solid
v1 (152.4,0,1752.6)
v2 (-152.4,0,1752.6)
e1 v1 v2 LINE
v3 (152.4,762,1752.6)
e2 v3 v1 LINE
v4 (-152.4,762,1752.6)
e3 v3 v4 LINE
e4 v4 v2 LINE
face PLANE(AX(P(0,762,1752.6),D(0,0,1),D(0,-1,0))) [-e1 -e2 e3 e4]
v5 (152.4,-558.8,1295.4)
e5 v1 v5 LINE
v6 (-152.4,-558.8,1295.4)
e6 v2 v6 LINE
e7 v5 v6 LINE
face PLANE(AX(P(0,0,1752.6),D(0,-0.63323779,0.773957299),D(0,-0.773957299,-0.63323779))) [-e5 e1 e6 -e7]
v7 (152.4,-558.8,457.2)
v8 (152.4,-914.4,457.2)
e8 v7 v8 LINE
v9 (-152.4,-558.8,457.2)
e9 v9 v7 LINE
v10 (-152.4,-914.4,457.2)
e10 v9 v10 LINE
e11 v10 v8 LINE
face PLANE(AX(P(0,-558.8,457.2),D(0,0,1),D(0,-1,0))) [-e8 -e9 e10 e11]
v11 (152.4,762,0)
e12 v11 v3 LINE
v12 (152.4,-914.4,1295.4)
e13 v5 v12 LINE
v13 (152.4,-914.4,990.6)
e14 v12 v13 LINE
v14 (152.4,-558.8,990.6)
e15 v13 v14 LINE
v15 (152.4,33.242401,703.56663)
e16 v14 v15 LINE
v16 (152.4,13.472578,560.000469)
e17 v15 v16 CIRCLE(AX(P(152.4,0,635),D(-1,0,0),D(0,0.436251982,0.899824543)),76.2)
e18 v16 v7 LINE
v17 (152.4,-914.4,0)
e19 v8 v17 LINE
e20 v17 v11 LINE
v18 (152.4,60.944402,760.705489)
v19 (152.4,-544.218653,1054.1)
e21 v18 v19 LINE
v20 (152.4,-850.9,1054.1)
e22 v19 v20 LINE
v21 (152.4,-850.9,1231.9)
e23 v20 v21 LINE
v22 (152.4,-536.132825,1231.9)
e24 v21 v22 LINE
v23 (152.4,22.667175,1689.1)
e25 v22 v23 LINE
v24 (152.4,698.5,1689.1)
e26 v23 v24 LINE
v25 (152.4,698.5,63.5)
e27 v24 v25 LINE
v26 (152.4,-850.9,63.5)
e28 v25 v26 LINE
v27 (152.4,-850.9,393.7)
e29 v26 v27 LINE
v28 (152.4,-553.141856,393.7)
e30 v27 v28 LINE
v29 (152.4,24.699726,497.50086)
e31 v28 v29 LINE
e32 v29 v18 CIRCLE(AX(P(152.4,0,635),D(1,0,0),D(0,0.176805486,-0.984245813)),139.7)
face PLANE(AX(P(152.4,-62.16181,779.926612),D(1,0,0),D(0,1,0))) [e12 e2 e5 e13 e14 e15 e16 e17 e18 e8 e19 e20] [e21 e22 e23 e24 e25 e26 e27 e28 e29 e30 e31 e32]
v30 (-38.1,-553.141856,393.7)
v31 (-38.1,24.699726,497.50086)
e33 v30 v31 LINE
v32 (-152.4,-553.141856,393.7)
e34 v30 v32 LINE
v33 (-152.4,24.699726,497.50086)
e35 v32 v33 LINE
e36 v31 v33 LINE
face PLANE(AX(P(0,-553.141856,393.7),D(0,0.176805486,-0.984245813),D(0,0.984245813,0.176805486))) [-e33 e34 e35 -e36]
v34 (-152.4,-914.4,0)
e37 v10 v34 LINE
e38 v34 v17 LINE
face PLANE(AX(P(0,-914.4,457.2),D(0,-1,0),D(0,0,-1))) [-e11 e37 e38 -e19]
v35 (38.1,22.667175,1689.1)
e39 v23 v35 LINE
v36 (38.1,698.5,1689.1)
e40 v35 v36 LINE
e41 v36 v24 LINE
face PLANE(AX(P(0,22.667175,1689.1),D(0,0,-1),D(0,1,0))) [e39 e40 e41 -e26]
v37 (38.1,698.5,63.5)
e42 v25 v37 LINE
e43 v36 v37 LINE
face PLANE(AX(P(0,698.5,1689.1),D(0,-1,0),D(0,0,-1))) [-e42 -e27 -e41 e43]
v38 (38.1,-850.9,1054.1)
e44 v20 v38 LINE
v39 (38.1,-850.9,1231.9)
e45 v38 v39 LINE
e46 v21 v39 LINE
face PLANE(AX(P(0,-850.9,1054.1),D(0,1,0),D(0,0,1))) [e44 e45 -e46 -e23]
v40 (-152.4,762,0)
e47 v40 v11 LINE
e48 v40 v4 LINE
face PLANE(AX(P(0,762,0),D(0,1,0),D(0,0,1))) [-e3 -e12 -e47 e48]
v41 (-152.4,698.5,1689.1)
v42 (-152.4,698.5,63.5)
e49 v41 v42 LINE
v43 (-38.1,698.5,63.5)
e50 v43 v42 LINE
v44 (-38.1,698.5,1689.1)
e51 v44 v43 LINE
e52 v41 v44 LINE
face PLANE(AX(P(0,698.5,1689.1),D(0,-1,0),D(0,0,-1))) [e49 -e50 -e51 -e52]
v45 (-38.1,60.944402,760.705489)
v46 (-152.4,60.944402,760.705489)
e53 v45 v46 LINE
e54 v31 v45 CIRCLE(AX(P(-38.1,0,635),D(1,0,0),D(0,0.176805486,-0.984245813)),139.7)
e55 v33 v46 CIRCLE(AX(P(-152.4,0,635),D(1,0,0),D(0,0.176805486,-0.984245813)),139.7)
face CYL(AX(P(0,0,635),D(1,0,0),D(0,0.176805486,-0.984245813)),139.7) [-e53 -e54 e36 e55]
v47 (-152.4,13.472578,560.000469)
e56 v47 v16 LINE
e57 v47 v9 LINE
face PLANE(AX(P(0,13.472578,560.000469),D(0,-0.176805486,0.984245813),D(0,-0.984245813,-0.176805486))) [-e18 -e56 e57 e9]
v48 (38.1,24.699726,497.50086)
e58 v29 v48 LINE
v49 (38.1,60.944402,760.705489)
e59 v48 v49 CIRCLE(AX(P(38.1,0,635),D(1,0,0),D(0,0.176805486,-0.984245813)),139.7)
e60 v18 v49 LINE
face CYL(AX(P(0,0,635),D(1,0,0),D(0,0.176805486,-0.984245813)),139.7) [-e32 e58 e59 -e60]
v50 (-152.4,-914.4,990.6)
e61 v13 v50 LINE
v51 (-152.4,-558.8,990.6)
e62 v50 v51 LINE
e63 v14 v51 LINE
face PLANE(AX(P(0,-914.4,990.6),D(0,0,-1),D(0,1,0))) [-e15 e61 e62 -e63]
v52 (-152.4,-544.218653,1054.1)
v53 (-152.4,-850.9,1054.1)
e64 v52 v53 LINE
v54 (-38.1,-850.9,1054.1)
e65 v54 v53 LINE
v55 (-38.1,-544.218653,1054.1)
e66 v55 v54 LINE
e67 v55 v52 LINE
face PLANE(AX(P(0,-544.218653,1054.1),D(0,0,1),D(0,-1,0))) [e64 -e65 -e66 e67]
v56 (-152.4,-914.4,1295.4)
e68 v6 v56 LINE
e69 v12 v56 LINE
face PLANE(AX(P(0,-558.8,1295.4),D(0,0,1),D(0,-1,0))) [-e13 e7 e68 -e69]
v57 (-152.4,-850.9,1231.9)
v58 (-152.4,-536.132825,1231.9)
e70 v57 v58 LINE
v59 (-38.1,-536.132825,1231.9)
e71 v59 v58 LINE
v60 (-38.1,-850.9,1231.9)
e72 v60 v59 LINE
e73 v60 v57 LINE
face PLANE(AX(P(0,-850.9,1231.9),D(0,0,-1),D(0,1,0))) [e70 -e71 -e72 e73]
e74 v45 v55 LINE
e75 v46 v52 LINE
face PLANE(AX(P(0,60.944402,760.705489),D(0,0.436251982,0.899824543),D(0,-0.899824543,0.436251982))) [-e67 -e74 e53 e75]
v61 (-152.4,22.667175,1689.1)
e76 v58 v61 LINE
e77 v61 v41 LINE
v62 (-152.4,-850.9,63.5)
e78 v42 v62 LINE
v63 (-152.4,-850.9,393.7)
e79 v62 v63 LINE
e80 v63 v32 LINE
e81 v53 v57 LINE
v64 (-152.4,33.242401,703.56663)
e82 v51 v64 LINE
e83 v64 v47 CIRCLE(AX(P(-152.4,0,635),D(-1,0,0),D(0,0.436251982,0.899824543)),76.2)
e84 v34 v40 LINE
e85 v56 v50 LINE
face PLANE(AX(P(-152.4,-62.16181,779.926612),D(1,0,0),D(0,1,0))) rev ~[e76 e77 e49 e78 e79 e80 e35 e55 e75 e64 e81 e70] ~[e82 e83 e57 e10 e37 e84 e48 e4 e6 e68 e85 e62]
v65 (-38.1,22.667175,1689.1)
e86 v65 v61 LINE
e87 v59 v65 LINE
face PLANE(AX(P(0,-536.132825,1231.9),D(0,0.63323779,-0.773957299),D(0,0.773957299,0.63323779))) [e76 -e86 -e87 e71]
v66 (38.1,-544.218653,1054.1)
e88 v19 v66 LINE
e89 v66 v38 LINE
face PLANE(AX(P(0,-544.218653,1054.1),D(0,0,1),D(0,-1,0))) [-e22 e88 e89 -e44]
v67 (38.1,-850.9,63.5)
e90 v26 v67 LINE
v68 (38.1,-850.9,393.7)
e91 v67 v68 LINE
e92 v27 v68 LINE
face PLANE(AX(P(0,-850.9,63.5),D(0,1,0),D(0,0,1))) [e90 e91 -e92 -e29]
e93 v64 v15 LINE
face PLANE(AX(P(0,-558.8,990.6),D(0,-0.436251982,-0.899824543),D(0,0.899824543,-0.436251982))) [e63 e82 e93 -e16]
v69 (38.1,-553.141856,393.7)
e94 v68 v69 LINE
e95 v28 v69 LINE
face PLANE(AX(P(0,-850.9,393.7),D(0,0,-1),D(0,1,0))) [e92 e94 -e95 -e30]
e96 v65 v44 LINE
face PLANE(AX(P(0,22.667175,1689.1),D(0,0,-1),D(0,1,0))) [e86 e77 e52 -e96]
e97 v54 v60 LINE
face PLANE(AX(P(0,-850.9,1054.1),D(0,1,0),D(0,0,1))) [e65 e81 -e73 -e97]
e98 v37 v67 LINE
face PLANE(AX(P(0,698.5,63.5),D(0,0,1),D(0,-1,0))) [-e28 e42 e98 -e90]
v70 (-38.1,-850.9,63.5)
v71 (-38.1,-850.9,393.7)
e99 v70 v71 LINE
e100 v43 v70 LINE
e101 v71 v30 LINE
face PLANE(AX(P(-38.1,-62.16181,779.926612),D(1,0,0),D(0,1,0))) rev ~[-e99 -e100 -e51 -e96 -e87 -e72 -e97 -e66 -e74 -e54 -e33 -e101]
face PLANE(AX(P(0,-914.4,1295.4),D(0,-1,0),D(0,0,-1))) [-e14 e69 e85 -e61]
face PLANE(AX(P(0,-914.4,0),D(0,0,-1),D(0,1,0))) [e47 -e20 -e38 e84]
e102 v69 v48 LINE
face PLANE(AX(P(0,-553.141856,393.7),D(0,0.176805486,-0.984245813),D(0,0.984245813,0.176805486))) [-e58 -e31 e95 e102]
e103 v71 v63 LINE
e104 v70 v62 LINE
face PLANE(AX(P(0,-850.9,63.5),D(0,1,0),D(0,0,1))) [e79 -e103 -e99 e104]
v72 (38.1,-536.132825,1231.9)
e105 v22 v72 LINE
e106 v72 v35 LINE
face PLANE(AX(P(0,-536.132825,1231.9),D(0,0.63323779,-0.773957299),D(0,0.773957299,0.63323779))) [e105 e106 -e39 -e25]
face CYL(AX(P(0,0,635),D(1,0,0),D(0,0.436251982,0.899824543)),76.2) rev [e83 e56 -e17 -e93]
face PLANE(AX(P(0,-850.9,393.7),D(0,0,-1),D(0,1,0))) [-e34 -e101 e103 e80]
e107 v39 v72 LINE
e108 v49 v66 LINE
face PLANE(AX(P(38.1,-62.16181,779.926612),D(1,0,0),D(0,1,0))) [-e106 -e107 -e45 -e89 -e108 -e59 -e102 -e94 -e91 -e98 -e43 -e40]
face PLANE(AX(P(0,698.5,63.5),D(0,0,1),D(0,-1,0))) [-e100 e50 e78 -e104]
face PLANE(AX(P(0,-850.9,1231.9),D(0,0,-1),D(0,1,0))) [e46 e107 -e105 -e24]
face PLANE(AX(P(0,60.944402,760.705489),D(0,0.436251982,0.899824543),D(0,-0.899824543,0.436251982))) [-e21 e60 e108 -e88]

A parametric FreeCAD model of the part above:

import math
import FreeCAD as App
import Part
import Sketcher

V = App.Vector
Q = App.Units.Quantity

doc = App.newDocument("Part")
body = doc.addObject("PartDesign::Body", "Body")

# Sketch on YZ plane
sketch1 = body.newObject("Sketcher::SketchObject", "Sketch")
sketch1.AttachmentSupport = (doc.getObject("YZ_Plane"), [""])
sketch1.MapMode = "FlatFace"
sketch1.addGeometry(Part.ArcOfCircle(Part.Circle(V(0, 635, 0), V(0, 0, 1), 76), math.radians(-80), math.radians(64)), False)
sketch1.addGeometry(Part.LineSegment(V(13, 560, 0), V(-559, 457, 0)), False)
sketch1.addGeometry(Part.LineSegment(V(-559, 457, 0), V(-914, 457, 0)), False)
sketch1.addGeometry(Part.LineSegment(V(-914, 457, 0), V(-914, 0, 0)), False)
sketch1.addGeometry(Part.LineSegment(V(-914, 0, 0), V(762, 0, 0)), False)
sketch1.addGeometry(Part.LineSegment(V(762, 0, 0), V(762, 1753, 0)), False)
sketch1.addGeometry(Part.LineSegment(V(762, 1753, 0), V(0, 1753, 0)), False)
sketch1.addGeometry(Part.LineSegment(V(0, 1753, 0), V(-559, 1295, 0)), False)
sketch1.addGeometry(Part.LineSegment(V(-559, 1295, 0), V(-914, 1295, 0)), False)
sketch1.addGeometry(Part.LineSegment(V(-914, 1295, 0), V(-914, 991, 0)), False)
sketch1.addGeometry(Part.LineSegment(V(-914, 991, 0), V(-559, 991, 0)), False)
sketch1.addGeometry(Part.LineSegment(V(-559, 991, 0), V(33, 704, 0)), False)
sketch1.addConstraint(Sketcher.Constraint("Tangent", 0, 1, 1, 1))
sketch1.addConstraint(Sketcher.Constraint("Coincident", 1, 2, 2, 1))
sketch1.addConstraint(Sketcher.Constraint("Coincident", 2, 2, 3, 1))
sketch1.addConstraint(Sketcher.Constraint("Coincident", 3, 2, 4, 1))
sketch1.addConstraint(Sketcher.Constraint("Coincident", 4, 2, 5, 1))
sketch1.addConstraint(Sketcher.Constraint("Coincident", 5, 2, 6, 1))
sketch1.addConstraint(Sketcher.Constraint("Coincident", 6, 2, 7, 1))
sketch1.addConstraint(Sketcher.Constraint("Coincident", 7, 2, 8, 1))
sketch1.addConstraint(Sketcher.Constraint("Coincident", 8, 2, 9, 1))
sketch1.addConstraint(Sketcher.Constraint("Coincident", 9, 2, 10, 1))
sketch1.addConstraint(Sketcher.Constraint("Coincident", 10, 2, 11, 1))
sketch1.addConstraint(Sketcher.Constraint("Tangent", 11, 2, 0, 2))
sketch1.addConstraint(Sketcher.Constraint("Horizontal", 2))
sketch1.addConstraint(Sketcher.Constraint("Vertical", 3))
sketch1.addConstraint(Sketcher.Constraint("Horizontal", 4))
sketch1.addConstraint(Sketcher.Constraint("Vertical", 5))
sketch1.addConstraint(Sketcher.Constraint("Horizontal", 6))
sketch1.addConstraint(Sketcher.Constraint("Horizontal", 8))
sketch1.addConstraint(Sketcher.Constraint("Vertical", 9))
sketch1.addConstraint(Sketcher.Constraint("Horizontal", 10))
sketch1.addConstraint(Sketcher.Constraint("PointOnObject", 0, 3, -2))
sketch1.addConstraint(Sketcher.Constraint("PointOnObject", 3, 2, -1))
sketch1.addConstraint(Sketcher.Constraint("PointOnObject", 6, 2, -2))
sketch1.addConstraint(Sketcher.Constraint("Vertical", 1, 2, 7, 2))
sketch1.addConstraint(Sketcher.Constraint("Vertical", 3, 2, 8, 2))
sketch1.addConstraint(Sketcher.Constraint("Vertical", 7, 2, 10, 2))
sketch1.addConstraint(Sketcher.Constraint("Radius", 0, Q("3 in")))
sketch1.addConstraint(Sketcher.Constraint("DistanceX", 2, 2, 2, 1, Q("14 in")))
sketch1.addConstraint(Sketcher.Constraint("DistanceX", 4, 1, 4, 2, Q("66 in")))
sketch1.addConstraint(Sketcher.Constraint("DistanceX", 6, 2, 6, 1, Q("30 in")))
sketch1.addConstraint(Sketcher.Constraint("DistanceY", 3, 2, 3, 1, Q("18 in")))
sketch1.addConstraint(Sketcher.Constraint("DistanceY", 5, 1, 5, 2, Q("69 in")))
sketch1.addConstraint(Sketcher.Constraint("DistanceY", 9, 2, 9, 1, Q("12 in")))
sketch1.addConstraint(Sketcher.Constraint("DistanceY", -1, 1, 0, 3, Q("25 in")))
sketch1.addConstraint(Sketcher.Constraint("DistanceY", -1, 1, 7, 2, Q("51 in")))
pad1 = body.newObject("PartDesign::Pad", "Pad")
pad1.Profile = sketch1
pad1.Length = Q("3 in")
pad1.Midplane = True

# Sketch on YZ plane
sketch2 = body.newObject("Sketcher::SketchObject", "Sketch001")
sketch2.AttachmentSupport = (doc.getObject("YZ_Plane"), [""])
sketch2.MapMode = "FlatFace"
sketch2.addGeometry(Part.LineSegment(V(-559, 991, 0), V(33, 704, 0)), False)
sketch2.addGeometry(Part.ArcOfCircle(Part.Circle(V(0, 635, 0), V(0, 0, 1), 76), math.radians(-80), math.radians(64)), False)
sketch2.addGeometry(Part.LineSegment(V(13, 560, 0), V(-559, 457, 0)), False)
sketch2.addGeometry(Part.LineSegment(V(-559, 457, 0), V(-914, 457, 0)), False)
sketch2.addGeometry(Part.LineSegment(V(-914, 457, 0), V(-914, 0, 0)), False)
sketch2.addGeometry(Part.LineSegment(V(-914, 0, 0), V(762, 0, 0)), False)
sketch2.addGeometry(Part.LineSegment(V(762, 0, 0), V(762, 1753, 0)), False)
sketch2.addGeometry(Part.LineSegment(V(762, 1753, 0), V(0, 1753, 0)), False)
sketch2.addGeometry(Part.LineSegment(V(0, 1753, 0), V(-559, 1295, 0)), False)
sketch2.addGeometry(Part.LineSegment(V(-559, 1295, 0), V(-914, 1295, 0)), False)
sketch2.addGeometry(Part.LineSegment(V(-914, 1295, 0), V(-914, 991, 0)), False)
sketch2.addGeometry(Part.LineSegment(V(-914, 991, 0), V(-559, 991, 0)), False)
sketch2.addGeometry(Part.LineSegment(V(23, 1689, 0), V(698, 1689, 0)), False)
sketch2.addGeometry(Part.LineSegment(V(698, 1689, 0), V(698, 64, 0)), False)
sketch2.addGeometry(Part.LineSegment(V(698, 64, 0), V(-851, 64, 0)), False)
sketch2.addGeometry(Part.LineSegment(V(-851, 64, 0), V(-851, 394, 0)), False)
sketch2.addGeometry(Part.LineSegment(V(-851, 394, 0), V(-553, 394, 0)), False)
sketch2.addGeometry(Part.LineSegment(V(-553, 394, 0), V(25, 498, 0)), False)
sketch2.addGeometry(Part.ArcOfCircle(Part.Circle(V(0, 635, 0), V(0, 0, 1), 140), math.radians(-80), math.radians(64)), False)
sketch2.addGeometry(Part.LineSegment(V(61, 761, 0), V(-544, 1054, 0)), False)
sketch2.addGeometry(Part.LineSegment(V(-544, 1054, 0), V(-851, 1054, 0)), False)
sketch2.addGeometry(Part.LineSegment(V(-851, 1054, 0), V(-851, 1232, 0)), False)
sketch2.addGeometry(Part.LineSegment(V(-851, 1232, 0), V(-536, 1232, 0)), False)
sketch2.addGeometry(Part.LineSegment(V(-536, 1232, 0), V(23, 1689, 0)), False)
sketch2.addConstraint(Sketcher.Constraint("Tangent", 0, 2, 1, 2))
sketch2.addConstraint(Sketcher.Constraint("Tangent", 1, 1, 2, 1))
sketch2.addConstraint(Sketcher.Constraint("Coincident", 2, 2, 3, 1))
sketch2.addConstraint(Sketcher.Constraint("Coincident", 3, 2, 4, 1))
sketch2.addConstraint(Sketcher.Constraint("Coincident", 4, 2, 5, 1))
sketch2.addConstraint(Sketcher.Constraint("Coincident", 5, 2, 6, 1))
sketch2.addConstraint(Sketcher.Constraint("Coincident", 6, 2, 7, 1))
sketch2.addConstraint(Sketcher.Constraint("Coincident", 7, 2, 8, 1))
sketch2.addConstraint(Sketcher.Constraint("Coincident", 8, 2, 9, 1))
sketch2.addConstraint(Sketcher.Constraint("Coincident", 9, 2, 10, 1))
sketch2.addConstraint(Sketcher.Constraint("Coincident", 10, 2, 11, 1))
sketch2.addConstraint(Sketcher.Constraint("Coincident", 11, 2, 0, 1))
sketch2.addConstraint(Sketcher.Constraint("Coincident", 12, 2, 13, 1))
sketch2.addConstraint(Sketcher.Constraint("Coincident", 13, 2, 14, 1))
sketch2.addConstraint(Sketcher.Constraint("Coincident", 14, 2, 15, 1))
sketch2.addConstraint(Sketcher.Constraint("Coincident", 15, 2, 16, 1))
sketch2.addConstraint(Sketcher.Constraint("Coincident", 16, 2, 17, 1))
sketch2.addConstraint(Sketcher.Constraint("Tangent", 17, 2, 18, 1))
sketch2.addConstraint(Sketcher.Constraint("Tangent", 18, 2, 19, 1))
sketch2.addConstraint(Sketcher.Constraint("Coincident", 19, 2, 20, 1))
sketch2.addConstraint(Sketcher.Constraint("Coincident", 20, 2, 21, 1))
sketch2.addConstraint(Sketcher.Constraint("Coincident", 21, 2, 22, 1))
sketch2.addConstraint(Sketcher.Constraint("Coincident", 22, 2, 23, 1))
sketch2.addConstraint(Sketcher.Constraint("Coincident", 23, 2, 12, 1))
sketch2.addConstraint(Sketcher.Constraint("Horizontal", 3))
sketch2.addConstraint(Sketcher.Constraint("Vertical", 4))
sketch2.addConstraint(Sketcher.Constraint("Horizontal", 5))
sketch2.addConstraint(Sketcher.Constraint("Vertical", 6))
sketch2.addConstraint(Sketcher.Constraint("Horizontal", 7))
sketch2.addConstraint(Sketcher.Constraint("Horizontal", 9))
sketch2.addConstraint(Sketcher.Constraint("Vertical", 10))
sketch2.addConstraint(Sketcher.Constraint("Horizontal", 11))
sketch2.addConstraint(Sketcher.Constraint("Horizontal", 12))
sketch2.addConstraint(Sketcher.Constraint("Vertical", 13))
sketch2.addConstraint(Sketcher.Constraint("Horizontal", 14))
sketch2.addConstraint(Sketcher.Constraint("Vertical", 15))
sketch2.addConstraint(Sketcher.Constraint("Horizontal", 16))
sketch2.addConstraint(Sketcher.Constraint("Horizontal", 20))
sketch2.addConstraint(Sketcher.Constraint("Vertical", 21))
sketch2.addConstraint(Sketcher.Constraint("Horizontal", 22))
sketch2.addConstraint(Sketcher.Constraint("Coincident", 18, 3, 1, 3))
sketch2.addConstraint(Sketcher.Constraint("PointOnObject", 1, 3, -2))
sketch2.addConstraint(Sketcher.Constraint("PointOnObject", 4, 2, -1))
sketch2.addConstraint(Sketcher.Constraint("PointOnObject", 7, 2, -2))
sketch2.addConstraint(Sketcher.Constraint("Parallel", 2, 17))
sketch2.addConstraint(Sketcher.Constraint("Parallel", 0, 19))
sketch2.addConstraint(Sketcher.Constraint("Parallel", 8, 23))
sketch2.addConstraint(Sketcher.Constraint("Vertical", 2, 2, 8, 2))
sketch2.addConstraint(Sketcher.Constraint("Vertical", 4, 2, 9, 2))
sketch2.addConstraint(Sketcher.Constraint("Vertical", 8, 2, 11, 2))
sketch2.addConstraint(Sketcher.Constraint("Vertical", 15, 2, 20, 2))
sketch2.addConstraint(Sketcher.Constraint("Equal", 8, 23))
sketch2.addConstraint(Sketcher.Constraint("Radius", 1, Q("3 in")))
sketch2.addConstraint(Sketcher.Constraint("Radius", 18, Q("5.5 in")))
sketch2.addConstraint(Sketcher.Constraint("DistanceX", 3, 2, 3, 1, Q("14 in")))
sketch2.addConstraint(Sketcher.Constraint("DistanceX", 5, 1, 5, 2, Q("66 in")))
sketch2.addConstraint(Sketcher.Constraint("DistanceX", 7, 2, 7, 1, Q("30 in")))
sketch2.addConstraint(Sketcher.Constraint("DistanceX", 14, 2, 14, 1, Q("61 in")))
sketch2.addConstraint(Sketcher.Constraint("DistanceY", 4, 2, 4, 1, Q("18 in")))
sketch2.addConstraint(Sketcher.Constraint("DistanceY", 6, 1, 6, 2, Q("69 in")))
sketch2.addConstraint(Sketcher.Constraint("DistanceY", 10, 2, 10, 1, Q("12 in")))
sketch2.addConstraint(Sketcher.Constraint("DistanceY", 13, 2, 13, 1, Q("64 in")))
sketch2.addConstraint(Sketcher.Constraint("DistanceY", 15, 1, 15, 2, Q("13 in")))
sketch2.addConstraint(Sketcher.Constraint("DistanceY", 21, 1, 21, 2, Q("7 in")))
sketch2.addConstraint(Sketcher.Constraint("DistanceY", -1, 1, 1, 3, Q("25 in")))
sketch2.addConstraint(Sketcher.Constraint("DistanceY", -1, 1, 8, 2, Q("51 in")))
sketch2.addConstraint(Sketcher.Constraint("DistanceX", -1, 1, 12, 2, Q("27.5 in")))
sketch2.addConstraint(Sketcher.Constraint("DistanceY", -1, 1, 12, 2, Q("66.5 in")))
sketch2.addConstraint(Sketcher.Constraint("DistanceX", 12, 1, 12, 2, Q("675.832825 mm")))
pad2 = body.newObject("PartDesign::Pad", "Pad001")
pad2.Profile = sketch2
pad2.Length = Q("12 in")
pad2.Midplane = True

doc.recompute()
